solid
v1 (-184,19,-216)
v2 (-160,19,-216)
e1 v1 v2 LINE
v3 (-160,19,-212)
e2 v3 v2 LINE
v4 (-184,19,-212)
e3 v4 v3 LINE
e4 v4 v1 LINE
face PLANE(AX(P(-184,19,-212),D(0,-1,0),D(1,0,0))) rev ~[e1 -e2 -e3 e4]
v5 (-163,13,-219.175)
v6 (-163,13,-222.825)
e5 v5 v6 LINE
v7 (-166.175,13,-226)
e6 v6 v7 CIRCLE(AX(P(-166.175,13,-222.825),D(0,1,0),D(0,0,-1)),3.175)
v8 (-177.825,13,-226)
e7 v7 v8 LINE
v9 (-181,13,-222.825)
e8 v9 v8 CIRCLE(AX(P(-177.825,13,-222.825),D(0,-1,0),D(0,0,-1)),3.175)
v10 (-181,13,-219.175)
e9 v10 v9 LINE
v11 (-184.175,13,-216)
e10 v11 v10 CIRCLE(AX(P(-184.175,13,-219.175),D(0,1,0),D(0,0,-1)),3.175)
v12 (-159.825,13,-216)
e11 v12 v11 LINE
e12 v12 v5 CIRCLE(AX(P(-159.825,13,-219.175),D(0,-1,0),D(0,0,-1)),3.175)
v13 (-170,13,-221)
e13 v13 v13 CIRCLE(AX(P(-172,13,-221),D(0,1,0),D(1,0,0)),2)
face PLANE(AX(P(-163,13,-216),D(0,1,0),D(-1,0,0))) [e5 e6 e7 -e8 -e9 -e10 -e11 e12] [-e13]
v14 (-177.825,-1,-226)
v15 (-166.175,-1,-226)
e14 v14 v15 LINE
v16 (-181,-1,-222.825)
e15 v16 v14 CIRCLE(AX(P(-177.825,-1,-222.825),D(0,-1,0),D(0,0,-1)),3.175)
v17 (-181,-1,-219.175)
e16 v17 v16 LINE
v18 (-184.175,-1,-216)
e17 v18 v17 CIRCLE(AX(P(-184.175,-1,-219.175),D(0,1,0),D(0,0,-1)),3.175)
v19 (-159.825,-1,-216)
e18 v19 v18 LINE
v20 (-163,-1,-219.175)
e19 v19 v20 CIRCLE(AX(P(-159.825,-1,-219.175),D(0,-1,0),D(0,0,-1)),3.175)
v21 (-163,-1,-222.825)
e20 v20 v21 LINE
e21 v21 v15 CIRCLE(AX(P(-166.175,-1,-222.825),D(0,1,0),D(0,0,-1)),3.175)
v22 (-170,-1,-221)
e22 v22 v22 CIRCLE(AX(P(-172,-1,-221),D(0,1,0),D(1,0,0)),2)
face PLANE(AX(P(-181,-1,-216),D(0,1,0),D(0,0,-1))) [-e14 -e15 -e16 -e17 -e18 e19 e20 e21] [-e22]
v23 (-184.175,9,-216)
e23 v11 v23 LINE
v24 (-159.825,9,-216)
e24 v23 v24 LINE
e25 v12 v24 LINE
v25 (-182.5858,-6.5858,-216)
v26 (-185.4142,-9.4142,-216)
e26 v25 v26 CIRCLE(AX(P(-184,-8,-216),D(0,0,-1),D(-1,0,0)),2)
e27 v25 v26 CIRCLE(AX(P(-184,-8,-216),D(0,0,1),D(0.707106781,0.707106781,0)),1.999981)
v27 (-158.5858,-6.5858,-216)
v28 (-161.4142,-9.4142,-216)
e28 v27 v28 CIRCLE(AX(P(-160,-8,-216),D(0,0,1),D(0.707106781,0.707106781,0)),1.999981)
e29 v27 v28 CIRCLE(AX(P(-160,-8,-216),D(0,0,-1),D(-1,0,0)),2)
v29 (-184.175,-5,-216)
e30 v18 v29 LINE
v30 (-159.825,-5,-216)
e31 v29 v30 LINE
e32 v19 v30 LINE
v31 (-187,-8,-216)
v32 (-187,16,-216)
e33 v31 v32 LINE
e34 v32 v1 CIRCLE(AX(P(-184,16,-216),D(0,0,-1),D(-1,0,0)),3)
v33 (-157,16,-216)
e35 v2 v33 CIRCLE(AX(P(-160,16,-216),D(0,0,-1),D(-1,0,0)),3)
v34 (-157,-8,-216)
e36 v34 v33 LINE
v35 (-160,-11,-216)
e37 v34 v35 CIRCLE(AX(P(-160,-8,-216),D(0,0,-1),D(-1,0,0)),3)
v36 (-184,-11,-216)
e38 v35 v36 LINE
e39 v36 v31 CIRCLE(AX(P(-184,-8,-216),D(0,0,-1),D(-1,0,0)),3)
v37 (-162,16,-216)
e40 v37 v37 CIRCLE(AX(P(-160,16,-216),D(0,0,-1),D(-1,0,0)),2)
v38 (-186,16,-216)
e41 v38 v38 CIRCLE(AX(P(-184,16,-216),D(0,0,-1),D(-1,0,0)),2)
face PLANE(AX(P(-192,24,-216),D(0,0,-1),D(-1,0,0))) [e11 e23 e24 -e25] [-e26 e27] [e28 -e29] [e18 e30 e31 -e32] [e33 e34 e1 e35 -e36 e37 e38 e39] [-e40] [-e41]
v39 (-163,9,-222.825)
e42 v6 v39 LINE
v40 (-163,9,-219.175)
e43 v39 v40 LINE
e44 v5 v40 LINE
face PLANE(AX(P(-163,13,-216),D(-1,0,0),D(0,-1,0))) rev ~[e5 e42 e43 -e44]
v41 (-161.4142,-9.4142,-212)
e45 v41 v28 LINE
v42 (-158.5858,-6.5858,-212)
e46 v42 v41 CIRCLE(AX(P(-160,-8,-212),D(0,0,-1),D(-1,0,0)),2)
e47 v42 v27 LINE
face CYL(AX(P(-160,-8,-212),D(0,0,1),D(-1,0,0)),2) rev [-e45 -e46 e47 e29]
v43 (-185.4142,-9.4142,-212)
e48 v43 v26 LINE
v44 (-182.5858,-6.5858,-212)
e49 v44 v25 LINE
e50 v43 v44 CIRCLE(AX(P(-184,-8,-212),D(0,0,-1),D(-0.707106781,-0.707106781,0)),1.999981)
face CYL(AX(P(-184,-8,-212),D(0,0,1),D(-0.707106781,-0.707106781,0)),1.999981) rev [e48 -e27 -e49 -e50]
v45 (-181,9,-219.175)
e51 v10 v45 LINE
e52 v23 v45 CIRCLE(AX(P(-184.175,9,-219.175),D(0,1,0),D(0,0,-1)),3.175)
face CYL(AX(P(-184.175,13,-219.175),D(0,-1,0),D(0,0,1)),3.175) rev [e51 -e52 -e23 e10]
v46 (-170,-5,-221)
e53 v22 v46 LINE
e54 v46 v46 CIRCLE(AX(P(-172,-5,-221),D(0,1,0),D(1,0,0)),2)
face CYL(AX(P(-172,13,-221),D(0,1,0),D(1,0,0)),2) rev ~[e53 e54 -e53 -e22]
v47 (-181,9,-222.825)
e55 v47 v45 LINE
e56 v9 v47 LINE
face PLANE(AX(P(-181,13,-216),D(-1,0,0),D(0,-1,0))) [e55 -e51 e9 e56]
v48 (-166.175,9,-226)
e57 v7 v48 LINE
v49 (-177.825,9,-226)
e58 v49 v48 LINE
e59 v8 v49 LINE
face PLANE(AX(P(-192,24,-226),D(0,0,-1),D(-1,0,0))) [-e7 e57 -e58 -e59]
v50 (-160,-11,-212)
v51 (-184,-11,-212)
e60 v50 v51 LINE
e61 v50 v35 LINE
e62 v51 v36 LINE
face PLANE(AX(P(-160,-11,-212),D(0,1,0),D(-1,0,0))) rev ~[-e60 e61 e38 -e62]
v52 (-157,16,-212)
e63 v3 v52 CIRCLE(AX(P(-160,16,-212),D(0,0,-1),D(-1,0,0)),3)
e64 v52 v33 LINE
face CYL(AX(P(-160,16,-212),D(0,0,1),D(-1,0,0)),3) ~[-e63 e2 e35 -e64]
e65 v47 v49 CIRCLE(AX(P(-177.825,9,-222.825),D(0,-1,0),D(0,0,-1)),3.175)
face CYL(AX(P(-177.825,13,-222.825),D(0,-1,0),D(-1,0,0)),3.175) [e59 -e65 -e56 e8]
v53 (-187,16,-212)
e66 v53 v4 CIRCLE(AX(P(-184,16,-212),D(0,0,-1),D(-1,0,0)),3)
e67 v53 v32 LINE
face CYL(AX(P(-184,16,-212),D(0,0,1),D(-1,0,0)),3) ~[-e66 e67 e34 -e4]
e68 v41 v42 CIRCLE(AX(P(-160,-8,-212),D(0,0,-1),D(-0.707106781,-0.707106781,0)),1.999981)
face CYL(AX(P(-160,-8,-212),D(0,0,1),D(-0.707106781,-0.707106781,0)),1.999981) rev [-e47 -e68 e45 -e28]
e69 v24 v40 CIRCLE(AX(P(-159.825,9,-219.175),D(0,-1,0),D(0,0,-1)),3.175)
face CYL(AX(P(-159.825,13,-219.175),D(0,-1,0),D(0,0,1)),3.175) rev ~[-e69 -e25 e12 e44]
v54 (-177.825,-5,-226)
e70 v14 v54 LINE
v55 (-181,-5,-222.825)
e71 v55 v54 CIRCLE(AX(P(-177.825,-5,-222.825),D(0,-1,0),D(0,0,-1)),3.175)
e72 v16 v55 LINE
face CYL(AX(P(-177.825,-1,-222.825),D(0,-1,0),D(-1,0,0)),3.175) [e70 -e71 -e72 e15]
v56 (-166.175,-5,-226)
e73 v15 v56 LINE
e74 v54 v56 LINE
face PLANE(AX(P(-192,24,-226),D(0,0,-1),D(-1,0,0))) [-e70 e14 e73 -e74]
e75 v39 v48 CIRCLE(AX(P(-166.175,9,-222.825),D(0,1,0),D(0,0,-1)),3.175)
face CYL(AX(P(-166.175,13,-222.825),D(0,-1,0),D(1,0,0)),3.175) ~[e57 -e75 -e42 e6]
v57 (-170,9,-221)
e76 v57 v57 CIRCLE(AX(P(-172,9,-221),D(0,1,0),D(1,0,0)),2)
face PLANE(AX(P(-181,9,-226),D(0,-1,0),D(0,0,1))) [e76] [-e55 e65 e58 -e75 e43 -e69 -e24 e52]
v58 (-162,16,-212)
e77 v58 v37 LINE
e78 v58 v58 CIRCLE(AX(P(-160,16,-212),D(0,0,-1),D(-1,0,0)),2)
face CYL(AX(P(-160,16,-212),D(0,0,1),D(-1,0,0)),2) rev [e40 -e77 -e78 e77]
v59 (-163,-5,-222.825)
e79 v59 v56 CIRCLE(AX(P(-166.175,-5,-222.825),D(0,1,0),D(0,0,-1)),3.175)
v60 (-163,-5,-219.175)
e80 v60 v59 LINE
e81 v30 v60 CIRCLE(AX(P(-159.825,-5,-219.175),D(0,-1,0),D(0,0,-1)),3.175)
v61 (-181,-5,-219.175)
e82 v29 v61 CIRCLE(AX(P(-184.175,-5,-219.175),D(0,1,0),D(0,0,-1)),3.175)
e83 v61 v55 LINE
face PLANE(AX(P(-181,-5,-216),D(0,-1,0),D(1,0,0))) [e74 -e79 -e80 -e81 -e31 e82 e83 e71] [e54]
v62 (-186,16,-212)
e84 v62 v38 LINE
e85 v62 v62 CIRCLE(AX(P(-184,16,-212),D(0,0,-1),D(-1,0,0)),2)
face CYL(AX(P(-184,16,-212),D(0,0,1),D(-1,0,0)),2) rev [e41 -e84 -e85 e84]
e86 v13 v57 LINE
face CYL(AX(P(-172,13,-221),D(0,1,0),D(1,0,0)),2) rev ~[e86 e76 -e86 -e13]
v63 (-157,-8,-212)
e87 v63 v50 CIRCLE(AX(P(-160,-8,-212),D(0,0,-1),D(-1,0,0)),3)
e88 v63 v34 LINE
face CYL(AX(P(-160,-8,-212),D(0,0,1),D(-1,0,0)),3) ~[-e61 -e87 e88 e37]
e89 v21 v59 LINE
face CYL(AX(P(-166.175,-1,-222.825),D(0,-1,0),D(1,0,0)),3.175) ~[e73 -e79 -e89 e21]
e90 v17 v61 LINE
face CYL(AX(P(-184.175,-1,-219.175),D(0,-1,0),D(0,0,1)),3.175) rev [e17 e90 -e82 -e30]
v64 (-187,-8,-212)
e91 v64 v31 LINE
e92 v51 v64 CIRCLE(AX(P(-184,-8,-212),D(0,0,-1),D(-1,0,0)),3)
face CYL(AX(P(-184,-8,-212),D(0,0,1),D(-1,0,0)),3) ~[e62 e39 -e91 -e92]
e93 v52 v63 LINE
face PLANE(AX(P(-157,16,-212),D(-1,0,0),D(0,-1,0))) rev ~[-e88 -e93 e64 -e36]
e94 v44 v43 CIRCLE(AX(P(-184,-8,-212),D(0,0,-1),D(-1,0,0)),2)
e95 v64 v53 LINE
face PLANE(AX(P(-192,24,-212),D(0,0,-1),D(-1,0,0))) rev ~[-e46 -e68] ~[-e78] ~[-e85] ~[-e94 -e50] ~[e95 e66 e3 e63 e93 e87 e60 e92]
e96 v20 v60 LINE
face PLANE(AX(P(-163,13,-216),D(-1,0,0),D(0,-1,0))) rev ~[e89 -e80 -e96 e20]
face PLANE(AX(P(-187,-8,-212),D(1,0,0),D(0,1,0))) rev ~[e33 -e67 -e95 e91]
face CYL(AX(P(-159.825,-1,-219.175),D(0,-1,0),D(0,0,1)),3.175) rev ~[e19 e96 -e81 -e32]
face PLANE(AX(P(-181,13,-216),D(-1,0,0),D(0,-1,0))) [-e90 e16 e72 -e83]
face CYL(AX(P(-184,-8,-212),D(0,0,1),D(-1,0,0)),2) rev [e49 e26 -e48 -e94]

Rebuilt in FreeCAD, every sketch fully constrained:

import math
import FreeCAD as App
import Part
import Sketcher
from FreeCAD import Vector


def edges_at(feature, points):
    """Names of the edges that pass closest to the given points."""
    edges = feature.Shape.Edges
    near = lambda p: min(range(len(edges)), key=lambda i: edges[i].distToShape(Part.Vertex(*p))[0])
    return sorted({f"Edge{near(p) + 1}" for p in points})

doc = App.newDocument("Part")
body = doc.addObject("PartDesign::Body", "Body")

sketch1 = doc.addObject("Sketcher::SketchObject", "Sketch")
body.addObject(sketch1)
sketch1.AttachmentSupport = (doc.XY_Plane, [""])
sketch1.MapMode = "FlatFace"
sketch1.AttachmentOffset = App.Placement(Vector(0, 0, -212), App.Rotation())
sketch1.addGeometry([
    Part.ArcOfCircle(Part.Circle(Vector(-160, 16, 0), Vector(0, 0, 1), 3), math.radians(0), math.radians(90)),
    Part.LineSegment(Vector(-157, 16, 0), Vector(-157, -8, 0)),
    Part.ArcOfCircle(Part.Circle(Vector(-160, -8, 0), Vector(0, 0, 1), 3), math.radians(-90), math.radians(0)),
    Part.LineSegment(Vector(-160, -11, 0), Vector(-184, -11, 0)),
    Part.ArcOfCircle(Part.Circle(Vector(-184, -8, 0), Vector(0, 0, 1), 3), math.radians(180), math.radians(270)),
    Part.LineSegment(Vector(-187, -8, 0), Vector(-187, 16, 0)),
    Part.ArcOfCircle(Part.Circle(Vector(-184, 16, 0), Vector(0, 0, 1), 3), math.radians(90), math.radians(180)),
    Part.LineSegment(Vector(-184, 19, 0), Vector(-160, 19, 0)),
    Part.Circle(Vector(-160, 16, 0), Vector(0, 0, 1), 2),
    Part.Circle(Vector(-184, 16, 0), Vector(0, 0, 1), 2),
    Part.Circle(Vector(-184, -8, 0), Vector(0, 0, 1), 1.999981),
    Part.Circle(Vector(-160, -8, 0), Vector(0, 0, 1), 1.999981),
], False)
sketch1.addConstraint([
    Sketcher.Constraint("Tangent", 0, 1, 1, 1),
    Sketcher.Constraint("Tangent", 1, 2, 2, 2),
    Sketcher.Constraint("Tangent", 2, 1, 3, 1),
    Sketcher.Constraint("Tangent", 3, 2, 4, 2),
    Sketcher.Constraint("Tangent", 4, 1, 5, 1),
    Sketcher.Constraint("Tangent", 5, 2, 6, 2),
    Sketcher.Constraint("Tangent", 6, 1, 7, 1),
    Sketcher.Constraint("Tangent", 7, 2, 0, 2),
    Sketcher.Constraint("Vertical", 1),
    Sketcher.Constraint("Horizontal", 3),
    Sketcher.Constraint("Vertical", 5),
    Sketcher.Constraint("Horizontal", 7),
    Sketcher.Constraint("Coincident", 8, 3, 0, 3),
    Sketcher.Constraint("Coincident", 9, 3, 6, 3),
    Sketcher.Constraint("Coincident", 10, 3, 4, 3),
    Sketcher.Constraint("Coincident", 11, 3, 2, 3),
    Sketcher.Constraint("Equal", 0, 2),
    Sketcher.Constraint("Equal", 2, 4),
    Sketcher.Constraint("Equal", 4, 6),
    Sketcher.Constraint("Equal", 8, 9),
    Sketcher.Constraint("Equal", 9, 10),
    Sketcher.Constraint("Equal", 10, 11),
    Sketcher.Constraint("Equal", 7, 1),
    Sketcher.Constraint("Diameter", 8, 4.0),
    Sketcher.Constraint("Radius", 0, 3.0),
    Sketcher.Constraint("DistanceX", 3, 2, 3, 1, 24.0),
    Sketcher.Constraint("DistanceX", 0, 3, -1, 1, 160.0),
    Sketcher.Constraint("DistanceY", -1, 1, 0, 3, 16.0),
])
pad1 = doc.addObject("PartDesign::Pad", "Pad")
body.addObject(pad1)
pad1.Profile = sketch1
pad1.Length = 4
pad1.Reversed = True

sketch2 = doc.addObject("Sketcher::SketchObject", "Sketch001")
body.addObject(sketch2)
sketch2.AttachmentSupport = (doc.XY_Plane, [""])
sketch2.MapMode = "FlatFace"
sketch2.AttachmentOffset = App.Placement(Vector(0, 0, -216), App.Rotation())
sketch2.addGeometry([
    Part.LineSegment(Vector(-181, 13, 0), Vector(-163, 13, 0)),
    Part.LineSegment(Vector(-163, 13, 0), Vector(-163, -5, 0)),
    Part.LineSegment(Vector(-163, -5, 0), Vector(-181, -5, 0)),
    Part.LineSegment(Vector(-181, -5, 0), Vector(-181, 13, 0)),
], False)
sketch2.addConstraint([
    Sketcher.Constraint("Coincident", 0, 2, 1, 1),
    Sketcher.Constraint("Coincident", 1, 2, 2, 1),
    Sketcher.Constraint("Coincident", 2, 2, 3, 1),
    Sketcher.Constraint("Coincident", 3, 2, 0, 1),
    Sketcher.Constraint("Horizontal", 0),
    Sketcher.Constraint("Vertical", 1),
    Sketcher.Constraint("Horizontal", 2),
    Sketcher.Constraint("Vertical", 3),
    Sketcher.Constraint("Equal", 2, 1),
    Sketcher.Constraint("DistanceX", 0, 1, 0, 2, 18.0),
    Sketcher.Constraint("DistanceX", 0, 2, -1, 1, 163.0),
    Sketcher.Constraint("DistanceY", -1, 1, 0, 2, 13.0),
])
pad2 = doc.addObject("PartDesign::Pad", "Pad001")
body.addObject(pad2)
pad2.Profile = sketch2
pad2.Length = 10
pad2.Reversed = True

sketch3 = doc.addObject("Sketcher::SketchObject", "Sketch002")
body.addObject(sketch3)
sketch3.AttachmentSupport = (doc.YZ_Plane, [""])
sketch3.MapMode = "FlatFace"
sketch3.AttachmentOffset = App.Placement(Vector(0, 0, -181), App.Rotation())
sketch3.addGeometry([
    Part.LineSegment(Vector(-1, -216, 0), Vector(9, -216, 0)),
    Part.LineSegment(Vector(9, -216, 0), Vector(9, -226, 0)),
    Part.LineSegment(Vector(9, -226, 0), Vector(-1, -226, 0)),
    Part.LineSegment(Vector(-1, -226, 0), Vector(-1, -216, 0)),
], False)
sketch3.addConstraint([
    Sketcher.Constraint("Coincident", 0, 2, 1, 1),
    Sketcher.Constraint("Coincident", 1, 2, 2, 1),
    Sketcher.Constraint("Coincident", 2, 2, 3, 1),
    Sketcher.Constraint("Coincident", 3, 2, 0, 1),
    Sketcher.Constraint("Horizontal", 0),
    Sketcher.Constraint("Vertical", 1),
    Sketcher.Constraint("Horizontal", 2),
    Sketcher.Constraint("Vertical", 3),
    Sketcher.Constraint("Equal", 2, 1),
    Sketcher.Constraint("DistanceX", 0, 1, 0, 2, 10.0),
    Sketcher.Constraint("DistanceX", -1, 1, 0, 2, 9.0),
    Sketcher.Constraint("DistanceY", 0, 2, -1, 1, 216.0),
])
pocket1 = doc.addObject("PartDesign::Pocket", "Pocket")
body.addObject(pocket1)
pocket1.Profile = sketch3
pocket1.Type = "ThroughAll"
pocket1.Reversed = True
doc.recompute()

fillet = doc.addObject("PartDesign::Fillet", "Fillet")
body.addObject(fillet)
fillet.Base = (pocket1, edges_at(pocket1, [
    (-181, 11, -226),
    (-163, 11, -226),
    (-181, 11, -216),
    (-163, 11, -216),
    (-163, -3, -216),
    (-163, -3, -226),
    (-181, -3, -226),
    (-181, -3, -216),
]))
fillet.Radius = 3.175

sketch4 = doc.addObject("Sketcher::SketchObject", "Sketch003")
body.addObject(sketch4)
sketch4.AttachmentSupport = (doc.XZ_Plane, [""])
sketch4.MapMode = "FlatFace"
sketch4.AttachmentOffset = App.Placement(Vector(0, 0, -13), App.Rotation())
sketch4.addGeometry(Part.Circle(Vector(-172, -221, 0), Vector(0, 0, 1), 2), False)
sketch4.addConstraint([
    Sketcher.Constraint("Diameter", 0, 4.0),
    Sketcher.Constraint("DistanceX", 0, 3, -1, 1, 172.0),
    Sketcher.Constraint("DistanceY", 0, 3, -1, 1, 221.0),
])
pocket2 = doc.addObject("PartDesign::Pocket", "Pocket001")
body.addObject(pocket2)
pocket2.Profile = sketch4
pocket2.Type = "ThroughAll"
pocket2.Reversed = True

doc.recompute()
